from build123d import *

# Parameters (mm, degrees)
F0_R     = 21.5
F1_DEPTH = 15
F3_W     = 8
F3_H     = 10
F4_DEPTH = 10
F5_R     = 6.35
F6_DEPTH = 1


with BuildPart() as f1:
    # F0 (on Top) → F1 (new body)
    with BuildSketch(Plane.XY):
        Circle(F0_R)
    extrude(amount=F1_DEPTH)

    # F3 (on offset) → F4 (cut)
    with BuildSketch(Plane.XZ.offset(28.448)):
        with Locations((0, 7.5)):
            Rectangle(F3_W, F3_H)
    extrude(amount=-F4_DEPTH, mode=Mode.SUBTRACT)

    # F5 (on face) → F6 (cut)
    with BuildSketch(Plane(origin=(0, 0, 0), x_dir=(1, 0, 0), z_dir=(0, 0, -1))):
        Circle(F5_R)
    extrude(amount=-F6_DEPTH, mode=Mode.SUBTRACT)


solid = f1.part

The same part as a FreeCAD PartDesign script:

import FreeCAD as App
import Part
import Sketcher

V = App.Vector
Q = App.Units.Quantity

doc = App.newDocument("Part")
params = doc.addObject("Spreadsheet::Sheet", "Params")
for row, (alias, value) in enumerate([
    ("sketch1_diameter", "43 mm"),
    ("pad1_length", "15 mm"),
    ("sketch2_width", "8 mm"),
    ("sketch2_height", "10 mm"),
    ("pocket1_length", "10 mm"),
    ("sketch3_diameter", "12.7 mm"),
    ("pocket2_length", "1 mm"),
], start=1):
    params.set(f"A{row}", alias)
    params.set(f"B{row}", "=" + value)
    params.setAlias(f"B{row}", alias)

body = doc.addObject("PartDesign::Body", "Body")

sketch1 = body.newObject("Sketcher::SketchObject", "Sketch")
sketch1.AttachmentSupport = (doc.getObject("XY_Plane"), [""])
sketch1.MapMode = "FlatFace"
sketch1.addGeometry(Part.Circle(V(0, 0, 0), V(0, 0, 1), 22), False)
sketch1.addConstraint([
    Sketcher.Constraint("Coincident", 0, 3, -1, 1),
    Sketcher.Constraint("Diameter", 0, Q("43 mm")),
])
sketch1.setExpression("Constraints[1]", "Params.sketch1_diameter")
pad1 = body.newObject("PartDesign::Pad", "Pad")
pad1.Profile = sketch1
pad1.setExpression("Length", "Params.pad1_length")

sketch2 = body.newObject("Sketcher::SketchObject", "Sketch001")
sketch2.AttachmentSupport = (doc.getObject("XZ_Plane"), [""])
sketch2.MapMode = "FlatFace"
sketch2.AttachmentOffset = App.Placement(V(0, 0, 28.448), App.Rotation())
sketch2.addGeometry([
    Part.LineSegment(V(-4, 12, 0), V(-4, 2, 0)),
    Part.LineSegment(V(-4, 2, 0), V(4, 2, 0)),
    Part.LineSegment(V(4, 2, 0), V(4, 12, 0)),
    Part.LineSegment(V(4, 12, 0), V(-4, 12, 0)),
], False)
sketch2.addConstraint([
    Sketcher.Constraint("Coincident", 0, 2, 1, 1),
    Sketcher.Constraint("Coincident", 1, 2, 2, 1),
    Sketcher.Constraint("Coincident", 2, 2, 3, 1),
    Sketcher.Constraint("Coincident", 3, 2, 0, 1),
    Sketcher.Constraint("Vertical", 0),
    Sketcher.Constraint("Horizontal", 1),
    Sketcher.Constraint("Vertical", 2),
    Sketcher.Constraint("Horizontal", 3),
    Sketcher.Constraint("DistanceX", 1, 1, 1, 2, Q("8 mm")),
    Sketcher.Constraint("DistanceY", 0, 2, 0, 1, Q("10 mm")),
    Sketcher.Constraint("DistanceX", 0, 2, -1, 1, Q("4 mm")),
    Sketcher.Constraint("DistanceY", -1, 1, 0, 2, Q("2.5 mm")),
])
sketch2.setExpression("Constraints[8]", "Params.sketch2_width")
sketch2.setExpression("Constraints[9]", "Params.sketch2_height")
pocket1 = body.newObject("PartDesign::Pocket", "Pocket")
pocket1.Profile = sketch2
pocket1.setExpression("Length", "Params.pocket1_length")

sketch3 = body.newObject("Sketcher::SketchObject", "Sketch002")
sketch3.AttachmentSupport = (doc.getObject("XY_Plane"), [""])
sketch3.MapMode = "FlatFace"
sketch3.addGeometry(Part.Circle(V(0, 0, 0), V(0, 0, 1), 6), False)
sketch3.addConstraint([
    Sketcher.Constraint("Coincident", 0, 3, -1, 1),
    Sketcher.Constraint("Diameter", 0, Q("12.7 mm")),
])
sketch3.setExpression("Constraints[1]", "Params.sketch3_diameter")
pocket2 = body.newObject("PartDesign::Pocket", "Pocket001")
pocket2.Profile = sketch3
pocket2.setExpression("Length", "Params.pocket2_length")
pocket2.Reversed = True

doc.recompute()
